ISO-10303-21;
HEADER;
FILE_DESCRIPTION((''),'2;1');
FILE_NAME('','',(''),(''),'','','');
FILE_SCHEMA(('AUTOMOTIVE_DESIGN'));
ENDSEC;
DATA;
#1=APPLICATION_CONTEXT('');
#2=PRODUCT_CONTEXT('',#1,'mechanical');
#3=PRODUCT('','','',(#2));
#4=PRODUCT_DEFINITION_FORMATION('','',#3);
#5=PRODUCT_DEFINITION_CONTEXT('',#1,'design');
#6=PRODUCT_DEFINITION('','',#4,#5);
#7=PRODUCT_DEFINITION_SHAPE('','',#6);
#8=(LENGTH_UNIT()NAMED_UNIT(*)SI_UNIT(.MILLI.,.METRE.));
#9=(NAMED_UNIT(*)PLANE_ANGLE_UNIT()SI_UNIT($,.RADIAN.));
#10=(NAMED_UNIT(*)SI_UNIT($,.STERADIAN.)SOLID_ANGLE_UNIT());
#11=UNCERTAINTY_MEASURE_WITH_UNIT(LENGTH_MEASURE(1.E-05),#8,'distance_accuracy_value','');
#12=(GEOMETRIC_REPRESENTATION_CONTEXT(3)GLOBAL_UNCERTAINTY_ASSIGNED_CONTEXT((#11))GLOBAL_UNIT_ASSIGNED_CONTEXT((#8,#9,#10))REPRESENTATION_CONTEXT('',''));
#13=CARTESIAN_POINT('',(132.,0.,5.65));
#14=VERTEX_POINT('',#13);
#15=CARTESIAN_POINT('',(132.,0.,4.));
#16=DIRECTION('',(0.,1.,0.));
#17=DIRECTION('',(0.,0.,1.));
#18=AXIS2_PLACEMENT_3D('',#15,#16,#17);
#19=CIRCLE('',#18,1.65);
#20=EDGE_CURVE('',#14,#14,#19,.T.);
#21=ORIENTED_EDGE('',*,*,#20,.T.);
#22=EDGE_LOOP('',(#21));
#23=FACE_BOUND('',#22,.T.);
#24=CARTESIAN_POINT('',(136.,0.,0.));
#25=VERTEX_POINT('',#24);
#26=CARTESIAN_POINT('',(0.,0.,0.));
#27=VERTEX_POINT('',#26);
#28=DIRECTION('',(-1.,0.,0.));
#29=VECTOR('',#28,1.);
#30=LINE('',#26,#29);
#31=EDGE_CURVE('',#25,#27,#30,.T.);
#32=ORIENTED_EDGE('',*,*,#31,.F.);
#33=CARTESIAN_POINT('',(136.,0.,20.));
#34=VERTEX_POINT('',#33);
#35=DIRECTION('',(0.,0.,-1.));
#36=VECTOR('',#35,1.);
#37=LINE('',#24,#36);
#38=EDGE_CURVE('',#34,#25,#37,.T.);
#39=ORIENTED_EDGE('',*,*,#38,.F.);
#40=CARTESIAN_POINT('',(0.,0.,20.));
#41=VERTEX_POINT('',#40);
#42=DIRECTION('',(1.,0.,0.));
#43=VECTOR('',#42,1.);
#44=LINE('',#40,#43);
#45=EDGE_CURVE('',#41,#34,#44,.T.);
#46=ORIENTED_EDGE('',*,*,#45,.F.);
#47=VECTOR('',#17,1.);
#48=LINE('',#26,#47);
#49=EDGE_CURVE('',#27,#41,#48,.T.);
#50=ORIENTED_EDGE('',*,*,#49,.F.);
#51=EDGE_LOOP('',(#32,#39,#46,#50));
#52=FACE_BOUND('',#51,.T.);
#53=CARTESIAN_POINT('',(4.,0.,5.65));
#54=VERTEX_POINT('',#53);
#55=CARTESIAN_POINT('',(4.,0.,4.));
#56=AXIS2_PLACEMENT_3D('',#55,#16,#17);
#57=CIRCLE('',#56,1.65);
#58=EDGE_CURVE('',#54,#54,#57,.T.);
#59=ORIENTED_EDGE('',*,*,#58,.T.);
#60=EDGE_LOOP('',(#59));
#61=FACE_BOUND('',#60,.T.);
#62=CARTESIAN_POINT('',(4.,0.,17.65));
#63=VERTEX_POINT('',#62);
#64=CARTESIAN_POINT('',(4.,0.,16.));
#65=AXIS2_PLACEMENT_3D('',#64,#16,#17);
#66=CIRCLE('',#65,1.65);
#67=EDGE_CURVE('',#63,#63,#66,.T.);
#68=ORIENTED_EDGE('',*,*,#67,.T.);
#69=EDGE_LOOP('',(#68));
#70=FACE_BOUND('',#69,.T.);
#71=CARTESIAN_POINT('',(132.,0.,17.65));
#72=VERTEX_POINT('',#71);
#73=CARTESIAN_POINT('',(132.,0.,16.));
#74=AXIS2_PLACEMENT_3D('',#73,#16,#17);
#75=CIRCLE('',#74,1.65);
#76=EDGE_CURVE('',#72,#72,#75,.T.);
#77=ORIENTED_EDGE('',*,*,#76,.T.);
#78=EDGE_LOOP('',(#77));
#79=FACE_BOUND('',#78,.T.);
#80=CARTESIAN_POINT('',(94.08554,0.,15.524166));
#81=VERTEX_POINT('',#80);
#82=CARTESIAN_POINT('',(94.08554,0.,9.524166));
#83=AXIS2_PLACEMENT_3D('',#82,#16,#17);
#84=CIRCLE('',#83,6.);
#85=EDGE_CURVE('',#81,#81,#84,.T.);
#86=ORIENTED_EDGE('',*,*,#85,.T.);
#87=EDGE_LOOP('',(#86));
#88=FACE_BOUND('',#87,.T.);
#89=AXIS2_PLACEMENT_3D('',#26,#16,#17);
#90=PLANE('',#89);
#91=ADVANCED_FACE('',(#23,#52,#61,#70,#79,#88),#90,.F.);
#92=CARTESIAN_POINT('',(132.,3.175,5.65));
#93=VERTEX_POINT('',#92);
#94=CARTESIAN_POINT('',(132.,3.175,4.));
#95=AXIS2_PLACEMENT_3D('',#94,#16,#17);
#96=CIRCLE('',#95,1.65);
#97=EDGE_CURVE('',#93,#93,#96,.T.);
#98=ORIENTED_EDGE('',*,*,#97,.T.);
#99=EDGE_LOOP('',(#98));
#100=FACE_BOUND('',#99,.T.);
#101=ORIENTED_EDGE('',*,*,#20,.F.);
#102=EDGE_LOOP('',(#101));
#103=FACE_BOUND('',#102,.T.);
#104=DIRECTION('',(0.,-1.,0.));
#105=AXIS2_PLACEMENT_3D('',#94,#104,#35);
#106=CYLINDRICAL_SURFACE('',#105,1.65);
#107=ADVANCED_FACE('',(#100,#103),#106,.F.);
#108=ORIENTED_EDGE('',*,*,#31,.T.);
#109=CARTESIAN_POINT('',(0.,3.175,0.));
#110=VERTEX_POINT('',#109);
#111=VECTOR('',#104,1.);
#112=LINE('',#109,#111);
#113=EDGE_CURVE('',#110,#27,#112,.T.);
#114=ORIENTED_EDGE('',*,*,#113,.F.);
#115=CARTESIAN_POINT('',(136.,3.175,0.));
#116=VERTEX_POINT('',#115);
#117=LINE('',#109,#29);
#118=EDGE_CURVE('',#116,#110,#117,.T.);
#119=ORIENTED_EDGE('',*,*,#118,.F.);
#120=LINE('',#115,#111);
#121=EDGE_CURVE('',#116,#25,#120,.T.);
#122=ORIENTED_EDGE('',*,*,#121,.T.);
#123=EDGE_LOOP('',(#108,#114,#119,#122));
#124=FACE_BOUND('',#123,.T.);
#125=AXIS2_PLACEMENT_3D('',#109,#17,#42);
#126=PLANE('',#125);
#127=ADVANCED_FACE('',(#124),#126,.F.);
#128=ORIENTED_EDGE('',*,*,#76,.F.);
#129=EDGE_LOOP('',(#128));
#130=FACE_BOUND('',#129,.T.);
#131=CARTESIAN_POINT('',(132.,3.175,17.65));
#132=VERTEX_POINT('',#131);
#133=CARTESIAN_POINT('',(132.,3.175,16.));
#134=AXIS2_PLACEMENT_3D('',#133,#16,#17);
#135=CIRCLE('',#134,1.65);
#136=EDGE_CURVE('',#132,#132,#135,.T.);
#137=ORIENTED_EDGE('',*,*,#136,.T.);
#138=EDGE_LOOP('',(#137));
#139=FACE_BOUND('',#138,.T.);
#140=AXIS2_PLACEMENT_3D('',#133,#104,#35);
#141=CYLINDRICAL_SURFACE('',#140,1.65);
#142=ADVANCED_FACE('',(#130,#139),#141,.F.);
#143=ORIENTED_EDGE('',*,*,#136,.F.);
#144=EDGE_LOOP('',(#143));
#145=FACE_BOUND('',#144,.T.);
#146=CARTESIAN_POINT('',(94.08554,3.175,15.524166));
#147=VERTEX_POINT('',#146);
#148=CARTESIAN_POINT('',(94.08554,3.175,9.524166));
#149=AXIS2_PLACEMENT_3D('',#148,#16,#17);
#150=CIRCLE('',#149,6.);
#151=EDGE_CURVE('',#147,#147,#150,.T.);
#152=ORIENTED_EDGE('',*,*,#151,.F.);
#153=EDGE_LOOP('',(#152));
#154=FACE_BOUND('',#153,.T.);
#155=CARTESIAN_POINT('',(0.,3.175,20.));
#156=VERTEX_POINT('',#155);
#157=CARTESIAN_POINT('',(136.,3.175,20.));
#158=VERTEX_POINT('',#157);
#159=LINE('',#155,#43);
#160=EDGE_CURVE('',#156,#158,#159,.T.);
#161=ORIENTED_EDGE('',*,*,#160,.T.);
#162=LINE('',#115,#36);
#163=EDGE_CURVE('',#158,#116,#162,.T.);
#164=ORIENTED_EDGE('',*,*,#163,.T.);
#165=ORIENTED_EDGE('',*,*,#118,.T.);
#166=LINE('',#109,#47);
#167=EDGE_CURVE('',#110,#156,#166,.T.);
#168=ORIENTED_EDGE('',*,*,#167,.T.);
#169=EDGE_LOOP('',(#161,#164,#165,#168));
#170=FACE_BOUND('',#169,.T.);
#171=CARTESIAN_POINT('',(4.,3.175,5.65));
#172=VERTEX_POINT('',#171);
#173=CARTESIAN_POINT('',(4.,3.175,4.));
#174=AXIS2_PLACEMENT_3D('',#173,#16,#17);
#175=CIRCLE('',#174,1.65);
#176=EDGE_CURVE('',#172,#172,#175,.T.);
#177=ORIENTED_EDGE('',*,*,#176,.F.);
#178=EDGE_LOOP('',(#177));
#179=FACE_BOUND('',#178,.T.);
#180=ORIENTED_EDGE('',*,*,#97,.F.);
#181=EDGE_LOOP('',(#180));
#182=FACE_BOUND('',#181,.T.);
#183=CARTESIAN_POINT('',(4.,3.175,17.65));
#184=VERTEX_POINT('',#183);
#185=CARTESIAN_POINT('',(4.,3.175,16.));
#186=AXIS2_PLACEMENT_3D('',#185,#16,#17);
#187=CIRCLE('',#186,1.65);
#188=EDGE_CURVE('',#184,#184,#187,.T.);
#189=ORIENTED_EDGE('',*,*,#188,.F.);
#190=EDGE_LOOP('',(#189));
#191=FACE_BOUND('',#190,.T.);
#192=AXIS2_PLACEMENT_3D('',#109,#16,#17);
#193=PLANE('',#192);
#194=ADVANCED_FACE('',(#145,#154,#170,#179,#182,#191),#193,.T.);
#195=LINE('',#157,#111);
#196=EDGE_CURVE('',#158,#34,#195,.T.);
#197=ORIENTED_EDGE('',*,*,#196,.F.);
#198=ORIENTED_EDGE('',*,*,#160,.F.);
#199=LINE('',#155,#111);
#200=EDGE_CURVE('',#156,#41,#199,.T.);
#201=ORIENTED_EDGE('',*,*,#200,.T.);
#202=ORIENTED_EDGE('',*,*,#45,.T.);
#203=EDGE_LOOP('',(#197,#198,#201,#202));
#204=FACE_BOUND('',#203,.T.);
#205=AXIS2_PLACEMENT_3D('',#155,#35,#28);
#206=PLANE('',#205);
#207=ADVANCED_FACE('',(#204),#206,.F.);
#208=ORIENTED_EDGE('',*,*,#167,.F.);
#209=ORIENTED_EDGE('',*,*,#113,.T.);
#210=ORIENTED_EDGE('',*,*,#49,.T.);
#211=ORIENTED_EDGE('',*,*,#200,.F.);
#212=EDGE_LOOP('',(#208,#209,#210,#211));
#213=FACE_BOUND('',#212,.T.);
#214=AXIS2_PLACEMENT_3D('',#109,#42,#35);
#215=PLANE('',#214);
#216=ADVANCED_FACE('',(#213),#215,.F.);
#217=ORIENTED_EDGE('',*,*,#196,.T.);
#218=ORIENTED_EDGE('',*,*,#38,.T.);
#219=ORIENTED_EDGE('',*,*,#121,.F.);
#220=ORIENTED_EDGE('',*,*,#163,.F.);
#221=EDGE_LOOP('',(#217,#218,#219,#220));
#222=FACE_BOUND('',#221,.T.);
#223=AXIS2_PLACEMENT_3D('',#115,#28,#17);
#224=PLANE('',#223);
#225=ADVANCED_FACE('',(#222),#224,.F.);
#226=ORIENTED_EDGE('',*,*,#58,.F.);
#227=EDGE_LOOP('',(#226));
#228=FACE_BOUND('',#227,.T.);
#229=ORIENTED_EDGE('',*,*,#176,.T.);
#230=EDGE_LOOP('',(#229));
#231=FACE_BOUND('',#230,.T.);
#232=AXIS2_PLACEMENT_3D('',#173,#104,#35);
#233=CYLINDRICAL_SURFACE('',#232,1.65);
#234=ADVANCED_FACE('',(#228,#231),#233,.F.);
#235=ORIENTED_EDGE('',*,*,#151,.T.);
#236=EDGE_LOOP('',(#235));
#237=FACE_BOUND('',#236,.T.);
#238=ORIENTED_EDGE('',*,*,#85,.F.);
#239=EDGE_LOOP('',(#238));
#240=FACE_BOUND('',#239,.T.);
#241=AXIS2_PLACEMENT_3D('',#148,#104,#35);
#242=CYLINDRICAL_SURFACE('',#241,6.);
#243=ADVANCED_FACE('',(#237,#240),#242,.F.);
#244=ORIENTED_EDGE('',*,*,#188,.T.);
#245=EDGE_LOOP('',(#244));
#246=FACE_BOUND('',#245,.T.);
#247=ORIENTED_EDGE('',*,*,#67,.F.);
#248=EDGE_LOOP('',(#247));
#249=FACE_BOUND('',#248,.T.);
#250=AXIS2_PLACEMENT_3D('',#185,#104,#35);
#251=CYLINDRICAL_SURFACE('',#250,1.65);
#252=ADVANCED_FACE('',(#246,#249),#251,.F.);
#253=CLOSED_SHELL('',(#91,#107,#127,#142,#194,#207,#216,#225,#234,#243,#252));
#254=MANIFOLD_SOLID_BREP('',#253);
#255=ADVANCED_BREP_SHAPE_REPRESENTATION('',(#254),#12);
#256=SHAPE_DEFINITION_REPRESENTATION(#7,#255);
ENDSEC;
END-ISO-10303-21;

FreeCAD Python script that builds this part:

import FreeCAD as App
import Part
import Sketcher

V = App.Vector
Q = App.Units.Quantity


def add_polygon(sketch, points):
    """Adds a closed chain of lines whose ends are joined by coincident constraints."""
    first, n = sketch.GeometryCount, len(points)
    for a, b in zip(points, points[1:] + points[:1]):
        sketch.addGeometry(Part.LineSegment(App.Vector(*a, 0), App.Vector(*b, 0)), False)
    for i in range(n):
        sketch.addConstraint(Sketcher.Constraint("Coincident", first + i, 2, first + (i + 1) % n, 1))

doc = App.newDocument("Part")
body = doc.addObject("PartDesign::Body", "Body")

sketch1 = body.newObject("Sketcher::SketchObject", "Sketch")
sketch1.AttachmentSupport = (doc.getObject("XZ_Plane"), [""])
sketch1.MapMode = "FlatFace"
add_polygon(sketch1, [(0, 0), (0, 20), (136, 20), (136, 0)])
sketch1.addGeometry(Part.Circle(V(4, 16, 0), V(0, 0, 1), 1.6), False)
sketch1.addGeometry(Part.Circle(V(132, 16, 0), V(0, 0, 1), 1.6), False)
sketch1.addGeometry(Part.Circle(V(4, 4, 0), V(0, 0, 1), 1.6), False)
sketch1.addGeometry(Part.Circle(V(94.1, 9.5, 0), V(0, 0, 1), 6), False)
sketch1.addGeometry(Part.Circle(V(132, 4, 0), V(0, 0, 1), 1.6), False)
sketch1.addConstraint(Sketcher.Constraint("Vertical", 0))
sketch1.addConstraint(Sketcher.Constraint("Horizontal", 1))
sketch1.addConstraint(Sketcher.Constraint("Vertical", 2))
sketch1.addConstraint(Sketcher.Constraint("Horizontal", 3))
sketch1.addConstraint(Sketcher.Constraint("Coincident", 3, 2, -1, 1))
sketch1.addConstraint(Sketcher.Constraint("Equal", 4, 5))
sketch1.addConstraint(Sketcher.Constraint("Equal", 5, 6))
sketch1.addConstraint(Sketcher.Constraint("Equal", 6, 8))
sketch1.addConstraint(Sketcher.Constraint("Horizontal", 4, 3, 5, 3))
sketch1.addConstraint(Sketcher.Constraint("Horizontal", 6, 3, 8, 3))
sketch1.addConstraint(Sketcher.Constraint("Vertical", 4, 3, 6, 3))
sketch1.addConstraint(Sketcher.Constraint("Vertical", 5, 3, 8, 3))
sketch1.addConstraint(Sketcher.Constraint("Diameter", 7, Q("12 mm")))
sketch1.addConstraint(Sketcher.Constraint("Diameter", 4, Q("3.3 mm")))
sketch1.addConstraint(Sketcher.Constraint("DistanceX", 1, 1, 1, 2, Q("136 mm")))
sketch1.addConstraint(Sketcher.Constraint("DistanceY", 0, 1, 0, 2, Q("20 mm")))
sketch1.addConstraint(Sketcher.Constraint("DistanceX", -1, 1, 4, 3, Q("4 mm")))
sketch1.addConstraint(Sketcher.Constraint("DistanceY", -1, 1, 4, 3, Q("16 mm")))
sketch1.addConstraint(Sketcher.Constraint("DistanceX", -1, 1, 5, 3, Q("132 mm")))
sketch1.addConstraint(Sketcher.Constraint("DistanceY", -1, 1, 6, 3, Q("4 mm")))
sketch1.addConstraint(Sketcher.Constraint("DistanceX", -1, 1, 7, 3, Q("94.08554 mm")))
sketch1.addConstraint(Sketcher.Constraint("DistanceY", -1, 1, 7, 3, Q("9.524166 mm")))
pad1 = body.newObject("PartDesign::Pad", "Pad")
pad1.Profile = sketch1
pad1.Length = 3.175
pad1.Reversed = True

doc.recompute()
